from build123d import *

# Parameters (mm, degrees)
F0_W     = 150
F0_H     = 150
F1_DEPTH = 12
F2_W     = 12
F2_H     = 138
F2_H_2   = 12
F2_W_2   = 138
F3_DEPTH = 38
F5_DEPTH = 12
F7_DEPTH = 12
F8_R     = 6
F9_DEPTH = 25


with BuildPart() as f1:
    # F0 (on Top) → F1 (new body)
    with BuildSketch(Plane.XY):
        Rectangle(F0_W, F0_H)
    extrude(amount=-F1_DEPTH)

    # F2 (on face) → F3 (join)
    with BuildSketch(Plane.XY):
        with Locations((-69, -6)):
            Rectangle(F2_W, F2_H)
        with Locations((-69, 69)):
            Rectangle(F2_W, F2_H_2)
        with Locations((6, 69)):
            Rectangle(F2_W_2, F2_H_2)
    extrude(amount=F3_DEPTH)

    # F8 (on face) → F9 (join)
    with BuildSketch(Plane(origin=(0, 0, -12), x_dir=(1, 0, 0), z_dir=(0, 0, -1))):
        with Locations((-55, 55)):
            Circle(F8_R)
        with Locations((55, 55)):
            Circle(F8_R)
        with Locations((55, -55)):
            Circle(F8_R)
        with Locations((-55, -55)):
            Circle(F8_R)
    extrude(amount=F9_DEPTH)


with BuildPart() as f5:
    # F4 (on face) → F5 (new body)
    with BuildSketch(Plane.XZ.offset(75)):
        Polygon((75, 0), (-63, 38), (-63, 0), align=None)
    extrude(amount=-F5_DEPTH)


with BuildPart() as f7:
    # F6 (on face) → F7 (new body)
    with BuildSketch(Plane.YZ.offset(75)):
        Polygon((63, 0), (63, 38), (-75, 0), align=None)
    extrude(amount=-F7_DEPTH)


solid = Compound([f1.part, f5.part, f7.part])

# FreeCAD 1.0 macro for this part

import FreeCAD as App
import Part
import Sketcher


def add_polygon(sketch, points):
    """Adds a closed chain of lines whose ends are joined by coincident constraints."""
    first, n = sketch.GeometryCount, len(points)
    for a, b in zip(points, points[1:] + points[:1]):
        sketch.addGeometry(Part.LineSegment(App.Vector(*a, 0), App.Vector(*b, 0)), False)
    for i in range(n):
        sketch.addConstraint(Sketcher.Constraint("Coincident", first + i, 2, first + (i + 1) % n, 1))

doc = App.newDocument("Part")
body = doc.addObject("PartDesign::Body", "Body")

sketch1 = body.newObject("Sketcher::SketchObject", "Sketch")
sketch1.AttachmentSupport = (doc.getObject("XY_Plane"), [""])
sketch1.MapMode = "FlatFace"
add_polygon(sketch1, [(-75, 75), (-75, -75), (75, -75), (75, 75)])
sketch1.addConstraint(Sketcher.Constraint("Vertical", 0))
sketch1.addConstraint(Sketcher.Constraint("Horizontal", 1))
sketch1.addConstraint(Sketcher.Constraint("Vertical", 2))
sketch1.addConstraint(Sketcher.Constraint("Horizontal", 3))
sketch1.addConstraint(Sketcher.Constraint("Symmetric", 0, 2, 2, 2, -1, 1))
sketch1.addConstraint(Sketcher.Constraint("Equal", 3, 0))
sketch1.addConstraint(Sketcher.Constraint("DistanceX", 1, 1, 1, 2, 150.0))
pad1 = body.newObject("PartDesign::Pad", "Pad")
pad1.Profile = sketch1
pad1.Length = 12
pad1.Reversed = True

sketch2 = body.newObject("Sketcher::SketchObject", "Sketch001")
sketch2.AttachmentSupport = (doc.getObject("XY_Plane"), [""])
sketch2.MapMode = "FlatFace"
add_polygon(sketch2, [(-75, -75), (-63, -75), (-63, 63), (75, 63), (75, 75), (-75, 75)])
sketch2.addConstraint(Sketcher.Constraint("Horizontal", 0))
sketch2.addConstraint(Sketcher.Constraint("Vertical", 1))
sketch2.addConstraint(Sketcher.Constraint("Horizontal", 2))
sketch2.addConstraint(Sketcher.Constraint("Vertical", 3))
sketch2.addConstraint(Sketcher.Constraint("Horizontal", 4))
sketch2.addConstraint(Sketcher.Constraint("Vertical", 5))
sketch2.addConstraint(Sketcher.Constraint("Symmetric", 3, 2, 5, 2, -1, 1))
sketch2.addConstraint(Sketcher.Constraint("Equal", 2, 1))
sketch2.addConstraint(Sketcher.Constraint("Equal", 0, 3))
sketch2.addConstraint(Sketcher.Constraint("DistanceX", 0, 1, 0, 2, 12.0))
sketch2.addConstraint(Sketcher.Constraint("DistanceX", 2, 1, 2, 2, 138.0))
pad2 = body.newObject("PartDesign::Pad", "Pad001")
pad2.Profile = sketch2
pad2.Length = 38

sketch3 = body.newObject("Sketcher::SketchObject", "Sketch002")
sketch3.AttachmentSupport = (doc.getObject("XY_Plane"), [""])
sketch3.MapMode = "FlatFace"
sketch3.AttachmentOffset = App.Placement(App.Vector(0, 0, -12), App.Rotation())
sketch3.addGeometry(Part.Circle(App.Vector(-55, -55, 0), App.Vector(0, 0, 1), 6), False)
sketch3.addGeometry(Part.Circle(App.Vector(55, -55, 0), App.Vector(0, 0, 1), 6), False)
sketch3.addGeometry(Part.Circle(App.Vector(55, 55, 0), App.Vector(0, 0, 1), 6), False)
sketch3.addGeometry(Part.Circle(App.Vector(-55, 55, 0), App.Vector(0, 0, 1), 6), False)
sketch3.addConstraint(Sketcher.Constraint("Equal", 0, 1))
sketch3.addConstraint(Sketcher.Constraint("Equal", 1, 2))
sketch3.addConstraint(Sketcher.Constraint("Equal", 2, 3))
sketch3.addConstraint(Sketcher.Constraint("Symmetric", 0, 3, 2, 3, -1, 1))
sketch3.addConstraint(Sketcher.Constraint("Symmetric", 1, 3, 3, 3, -1, 1))
sketch3.addConstraint(Sketcher.Constraint("Symmetric", 0, 3, 1, 3, -2))
sketch3.addConstraint(Sketcher.Constraint("Diameter", 0, 12.0))
sketch3.addConstraint(Sketcher.Constraint("DistanceX", 0, 3, -1, 1, 55.0))
sketch3.addConstraint(Sketcher.Constraint("DistanceY", 0, 3, -1, 1, 55.0))
pad3 = body.newObject("PartDesign::Pad", "Pad002")
pad3.Profile = sketch3
pad3.Length = 25
pad3.Reversed = True
body2 = doc.addObject("PartDesign::Body", "Body001")

sketch4 = body2.newObject("Sketcher::SketchObject", "Sketch003")
sketch4.AttachmentSupport = (doc.getObject("XZ_Plane001"), [""])
sketch4.MapMode = "FlatFace"
sketch4.AttachmentOffset = App.Placement(App.Vector(0, 0, 75), App.Rotation())
add_polygon(sketch4, [(75, 0), (-63, 38), (-63, 0)])
sketch4.addConstraint(Sketcher.Constraint("Vertical", 1))
sketch4.addConstraint(Sketcher.Constraint("Horizontal", 2))
sketch4.addConstraint(Sketcher.Constraint("PointOnObject", 1, 2, -1))
sketch4.addConstraint(Sketcher.Constraint("DistanceX", 2, 1, 2, 2, 138.0))
sketch4.addConstraint(Sketcher.Constraint("DistanceY", 1, 2, 1, 1, 38.0))
sketch4.addConstraint(Sketcher.Constraint("DistanceX", 0, 2, -1, 1, 63.0))
pad4 = body2.newObject("PartDesign::Pad", "Pad003")
pad4.Profile = sketch4
pad4.Length = 12
pad4.Reversed = True
body3 = doc.addObject("PartDesign::Body", "Body002")

sketch5 = body3.newObject("Sketcher::SketchObject", "Sketch004")
sketch5.AttachmentSupport = (doc.getObject("YZ_Plane002"), [""])
sketch5.MapMode = "FlatFace"
sketch5.AttachmentOffset = App.Placement(App.Vector(0, 0, 75), App.Rotation())
add_polygon(sketch5, [(63, 0), (63, 38), (-75, 0)])
sketch5.addConstraint(Sketcher.Constraint("Vertical", 0))
sketch5.addConstraint(Sketcher.Constraint("Horizontal", 2))
sketch5.addConstraint(Sketcher.Constraint("PointOnObject", 1, 2, -1))
sketch5.addConstraint(Sketcher.Constraint("DistanceX", 2, 1, 2, 2, 138.0))
sketch5.addConstraint(Sketcher.Constraint("DistanceY", 0, 1, 0, 2, 38.0))
sketch5.addConstraint(Sketcher.Constraint("DistanceX", -1, 1, 0, 2, 63.0))
pad5 = body3.newObject("PartDesign::Pad", "Pad004")
pad5.Profile = sketch5
pad5.Length = 12
pad5.Reversed = True

doc.recompute()
